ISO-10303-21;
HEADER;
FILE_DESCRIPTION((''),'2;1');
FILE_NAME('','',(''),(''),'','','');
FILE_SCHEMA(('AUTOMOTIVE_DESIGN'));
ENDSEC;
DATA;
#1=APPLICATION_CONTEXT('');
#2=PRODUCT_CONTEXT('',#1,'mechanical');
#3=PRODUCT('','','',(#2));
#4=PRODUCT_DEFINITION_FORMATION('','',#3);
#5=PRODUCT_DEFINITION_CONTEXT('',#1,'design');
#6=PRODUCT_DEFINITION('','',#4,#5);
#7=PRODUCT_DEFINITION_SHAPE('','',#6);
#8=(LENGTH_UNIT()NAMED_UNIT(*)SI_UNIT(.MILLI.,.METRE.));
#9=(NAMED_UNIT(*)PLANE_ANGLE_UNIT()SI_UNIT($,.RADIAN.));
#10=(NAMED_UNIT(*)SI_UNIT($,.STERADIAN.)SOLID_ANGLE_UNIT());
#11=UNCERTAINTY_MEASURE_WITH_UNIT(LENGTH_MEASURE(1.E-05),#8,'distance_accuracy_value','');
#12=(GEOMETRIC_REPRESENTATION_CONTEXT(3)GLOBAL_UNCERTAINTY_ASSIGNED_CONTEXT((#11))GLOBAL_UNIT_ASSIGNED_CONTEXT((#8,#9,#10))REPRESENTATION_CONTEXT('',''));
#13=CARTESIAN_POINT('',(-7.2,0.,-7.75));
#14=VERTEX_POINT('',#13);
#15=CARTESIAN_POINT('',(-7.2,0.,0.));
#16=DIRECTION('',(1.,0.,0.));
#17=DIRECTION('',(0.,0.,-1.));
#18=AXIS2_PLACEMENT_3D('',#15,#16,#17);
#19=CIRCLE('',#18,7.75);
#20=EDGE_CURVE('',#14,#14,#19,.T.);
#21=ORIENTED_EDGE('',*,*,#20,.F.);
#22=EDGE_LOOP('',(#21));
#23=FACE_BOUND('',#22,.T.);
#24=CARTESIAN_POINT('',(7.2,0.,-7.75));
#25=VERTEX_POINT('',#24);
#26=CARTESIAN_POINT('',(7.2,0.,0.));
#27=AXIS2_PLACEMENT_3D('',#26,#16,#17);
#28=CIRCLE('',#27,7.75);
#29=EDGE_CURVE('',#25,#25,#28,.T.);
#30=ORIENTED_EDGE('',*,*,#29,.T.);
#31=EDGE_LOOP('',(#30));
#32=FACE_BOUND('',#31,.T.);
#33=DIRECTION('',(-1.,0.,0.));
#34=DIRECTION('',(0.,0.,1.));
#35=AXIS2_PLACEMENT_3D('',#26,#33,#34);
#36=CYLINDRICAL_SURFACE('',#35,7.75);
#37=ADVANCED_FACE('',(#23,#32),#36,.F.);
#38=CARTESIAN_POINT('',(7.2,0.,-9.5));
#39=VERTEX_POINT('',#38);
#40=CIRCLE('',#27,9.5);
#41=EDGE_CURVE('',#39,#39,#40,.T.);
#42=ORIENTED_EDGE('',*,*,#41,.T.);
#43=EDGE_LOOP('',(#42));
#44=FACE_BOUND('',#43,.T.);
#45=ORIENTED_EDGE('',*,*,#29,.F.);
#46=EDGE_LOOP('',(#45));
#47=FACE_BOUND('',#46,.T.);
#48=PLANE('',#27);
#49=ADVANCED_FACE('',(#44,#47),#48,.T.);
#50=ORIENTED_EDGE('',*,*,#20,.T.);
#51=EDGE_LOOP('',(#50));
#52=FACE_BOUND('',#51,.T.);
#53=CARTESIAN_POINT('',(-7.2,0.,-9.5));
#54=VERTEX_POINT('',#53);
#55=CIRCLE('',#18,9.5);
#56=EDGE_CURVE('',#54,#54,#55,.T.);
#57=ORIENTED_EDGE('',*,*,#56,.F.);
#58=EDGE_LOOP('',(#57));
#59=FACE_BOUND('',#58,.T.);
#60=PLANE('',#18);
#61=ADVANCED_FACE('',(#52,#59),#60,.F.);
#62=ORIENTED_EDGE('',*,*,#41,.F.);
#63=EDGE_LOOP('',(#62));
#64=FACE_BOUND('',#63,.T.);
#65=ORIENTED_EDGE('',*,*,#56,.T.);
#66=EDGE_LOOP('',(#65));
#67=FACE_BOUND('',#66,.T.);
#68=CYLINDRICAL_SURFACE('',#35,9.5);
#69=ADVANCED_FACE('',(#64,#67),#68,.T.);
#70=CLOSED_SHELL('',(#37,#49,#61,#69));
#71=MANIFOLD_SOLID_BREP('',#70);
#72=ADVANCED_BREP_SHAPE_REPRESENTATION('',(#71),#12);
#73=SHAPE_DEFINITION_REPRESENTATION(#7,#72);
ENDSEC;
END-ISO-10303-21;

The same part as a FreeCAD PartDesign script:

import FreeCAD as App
import Part
import Sketcher
from FreeCAD import Vector
Q = App.Units.Quantity

doc = App.newDocument("Part")
body = doc.addObject("PartDesign::Body", "Body")

# Sketch on YZ plane
sketch1 = doc.addObject("Sketcher::SketchObject", "Sketch")
body.addObject(sketch1)
sketch1.AttachmentSupport = (doc.YZ_Plane, [""])
sketch1.MapMode = "FlatFace"
sketch1.addGeometry([
    Part.Circle(Vector(0, 0, 0), Vector(0, 0, 1), 9.5),
    Part.Circle(Vector(0, 0, 0), Vector(0, 0, 1), 7.75),
], False)
sketch1.addConstraint([
    Sketcher.Constraint("Coincident", 0, 3, -1, 1),
    Sketcher.Constraint("Coincident", 1, 3, -1, 1),
    Sketcher.Constraint("Diameter", 0, Q("19 mm")),
    Sketcher.Constraint("Diameter", 1, Q("15.5 mm")),
])
pad1 = doc.addObject("PartDesign::Pad", "Pad")
body.addObject(pad1)
pad1.Profile = sketch1
pad1.Length = 14.4
pad1.Midplane = True

doc.recompute()
